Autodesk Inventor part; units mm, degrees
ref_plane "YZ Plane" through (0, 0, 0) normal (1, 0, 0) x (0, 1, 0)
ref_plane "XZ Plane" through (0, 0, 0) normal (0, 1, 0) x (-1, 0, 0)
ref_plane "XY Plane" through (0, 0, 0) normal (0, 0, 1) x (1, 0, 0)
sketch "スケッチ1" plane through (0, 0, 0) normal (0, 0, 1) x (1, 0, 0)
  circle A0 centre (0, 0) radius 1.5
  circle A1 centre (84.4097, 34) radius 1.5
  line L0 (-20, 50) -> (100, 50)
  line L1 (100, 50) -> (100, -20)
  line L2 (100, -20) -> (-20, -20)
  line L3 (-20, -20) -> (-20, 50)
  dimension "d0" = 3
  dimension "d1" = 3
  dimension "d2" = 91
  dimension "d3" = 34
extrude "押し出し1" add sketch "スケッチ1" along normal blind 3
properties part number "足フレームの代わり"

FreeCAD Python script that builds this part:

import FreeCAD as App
import Part
import Sketcher
from FreeCAD import Vector


def add_polygon(sketch, points):
    """Adds a closed chain of lines whose ends are joined by coincident constraints."""
    first, n = sketch.GeometryCount, len(points)
    for a, b in zip(points, points[1:] + points[:1]):
        sketch.addGeometry(Part.LineSegment(App.Vector(*a, 0), App.Vector(*b, 0)), False)
    for i in range(n):
        sketch.addConstraint(Sketcher.Constraint("Coincident", first + i, 2, first + (i + 1) % n, 1))

doc = App.newDocument("Part")
body = doc.addObject("PartDesign::Body", "Body")

# Sketch on XY plane
sketch1 = doc.addObject("Sketcher::SketchObject", "Sketch")
body.addObject(sketch1)
sketch1.AttachmentSupport = (doc.XY_Plane, [""])
sketch1.MapMode = "FlatFace"
add_polygon(sketch1, [(100, 50), (-20, 50), (-20, -20), (100, -20)])  # lines 0-3
sketch1.addGeometry(Part.Circle(Vector(0, 0, 0), Vector(0, 0, 1), 1.5), False)  # 4
sketch1.addGeometry(Part.Circle(Vector(84.4097, 34, 0), Vector(0, 0, 1), 1.5), False)  # 5
sketch1.addConstraint([
    Sketcher.Constraint("Horizontal", 0),
    Sketcher.Constraint("Vertical", 1),
    Sketcher.Constraint("Horizontal", 2),
    Sketcher.Constraint("Vertical", 3),
    Sketcher.Constraint("Coincident", 4, 3, -1, 1),
    Sketcher.Constraint("Equal", 4, 5),
    Sketcher.Constraint("Diameter", 4, 3.0),
    Sketcher.Constraint("DistanceY", -1, 1, 5, 3, 34.0),
    Sketcher.Constraint("DistanceX", 0, 2, 0, 1, 120.0),
    Sketcher.Constraint("DistanceY", 1, 2, 1, 1, 70.0),
    Sketcher.Constraint("DistanceX", 0, 2, -1, 1, 20.0),
    Sketcher.Constraint("DistanceY", -1, 1, 0, 2, 50.0),
    Sketcher.Constraint("DistanceX", -1, 1, 5, 3, 84.4097),
])
pad1 = doc.addObject("PartDesign::Pad", "Pad")
body.addObject(pad1)
pad1.Profile = sketch1
pad1.Length = 3

doc.recompute()
